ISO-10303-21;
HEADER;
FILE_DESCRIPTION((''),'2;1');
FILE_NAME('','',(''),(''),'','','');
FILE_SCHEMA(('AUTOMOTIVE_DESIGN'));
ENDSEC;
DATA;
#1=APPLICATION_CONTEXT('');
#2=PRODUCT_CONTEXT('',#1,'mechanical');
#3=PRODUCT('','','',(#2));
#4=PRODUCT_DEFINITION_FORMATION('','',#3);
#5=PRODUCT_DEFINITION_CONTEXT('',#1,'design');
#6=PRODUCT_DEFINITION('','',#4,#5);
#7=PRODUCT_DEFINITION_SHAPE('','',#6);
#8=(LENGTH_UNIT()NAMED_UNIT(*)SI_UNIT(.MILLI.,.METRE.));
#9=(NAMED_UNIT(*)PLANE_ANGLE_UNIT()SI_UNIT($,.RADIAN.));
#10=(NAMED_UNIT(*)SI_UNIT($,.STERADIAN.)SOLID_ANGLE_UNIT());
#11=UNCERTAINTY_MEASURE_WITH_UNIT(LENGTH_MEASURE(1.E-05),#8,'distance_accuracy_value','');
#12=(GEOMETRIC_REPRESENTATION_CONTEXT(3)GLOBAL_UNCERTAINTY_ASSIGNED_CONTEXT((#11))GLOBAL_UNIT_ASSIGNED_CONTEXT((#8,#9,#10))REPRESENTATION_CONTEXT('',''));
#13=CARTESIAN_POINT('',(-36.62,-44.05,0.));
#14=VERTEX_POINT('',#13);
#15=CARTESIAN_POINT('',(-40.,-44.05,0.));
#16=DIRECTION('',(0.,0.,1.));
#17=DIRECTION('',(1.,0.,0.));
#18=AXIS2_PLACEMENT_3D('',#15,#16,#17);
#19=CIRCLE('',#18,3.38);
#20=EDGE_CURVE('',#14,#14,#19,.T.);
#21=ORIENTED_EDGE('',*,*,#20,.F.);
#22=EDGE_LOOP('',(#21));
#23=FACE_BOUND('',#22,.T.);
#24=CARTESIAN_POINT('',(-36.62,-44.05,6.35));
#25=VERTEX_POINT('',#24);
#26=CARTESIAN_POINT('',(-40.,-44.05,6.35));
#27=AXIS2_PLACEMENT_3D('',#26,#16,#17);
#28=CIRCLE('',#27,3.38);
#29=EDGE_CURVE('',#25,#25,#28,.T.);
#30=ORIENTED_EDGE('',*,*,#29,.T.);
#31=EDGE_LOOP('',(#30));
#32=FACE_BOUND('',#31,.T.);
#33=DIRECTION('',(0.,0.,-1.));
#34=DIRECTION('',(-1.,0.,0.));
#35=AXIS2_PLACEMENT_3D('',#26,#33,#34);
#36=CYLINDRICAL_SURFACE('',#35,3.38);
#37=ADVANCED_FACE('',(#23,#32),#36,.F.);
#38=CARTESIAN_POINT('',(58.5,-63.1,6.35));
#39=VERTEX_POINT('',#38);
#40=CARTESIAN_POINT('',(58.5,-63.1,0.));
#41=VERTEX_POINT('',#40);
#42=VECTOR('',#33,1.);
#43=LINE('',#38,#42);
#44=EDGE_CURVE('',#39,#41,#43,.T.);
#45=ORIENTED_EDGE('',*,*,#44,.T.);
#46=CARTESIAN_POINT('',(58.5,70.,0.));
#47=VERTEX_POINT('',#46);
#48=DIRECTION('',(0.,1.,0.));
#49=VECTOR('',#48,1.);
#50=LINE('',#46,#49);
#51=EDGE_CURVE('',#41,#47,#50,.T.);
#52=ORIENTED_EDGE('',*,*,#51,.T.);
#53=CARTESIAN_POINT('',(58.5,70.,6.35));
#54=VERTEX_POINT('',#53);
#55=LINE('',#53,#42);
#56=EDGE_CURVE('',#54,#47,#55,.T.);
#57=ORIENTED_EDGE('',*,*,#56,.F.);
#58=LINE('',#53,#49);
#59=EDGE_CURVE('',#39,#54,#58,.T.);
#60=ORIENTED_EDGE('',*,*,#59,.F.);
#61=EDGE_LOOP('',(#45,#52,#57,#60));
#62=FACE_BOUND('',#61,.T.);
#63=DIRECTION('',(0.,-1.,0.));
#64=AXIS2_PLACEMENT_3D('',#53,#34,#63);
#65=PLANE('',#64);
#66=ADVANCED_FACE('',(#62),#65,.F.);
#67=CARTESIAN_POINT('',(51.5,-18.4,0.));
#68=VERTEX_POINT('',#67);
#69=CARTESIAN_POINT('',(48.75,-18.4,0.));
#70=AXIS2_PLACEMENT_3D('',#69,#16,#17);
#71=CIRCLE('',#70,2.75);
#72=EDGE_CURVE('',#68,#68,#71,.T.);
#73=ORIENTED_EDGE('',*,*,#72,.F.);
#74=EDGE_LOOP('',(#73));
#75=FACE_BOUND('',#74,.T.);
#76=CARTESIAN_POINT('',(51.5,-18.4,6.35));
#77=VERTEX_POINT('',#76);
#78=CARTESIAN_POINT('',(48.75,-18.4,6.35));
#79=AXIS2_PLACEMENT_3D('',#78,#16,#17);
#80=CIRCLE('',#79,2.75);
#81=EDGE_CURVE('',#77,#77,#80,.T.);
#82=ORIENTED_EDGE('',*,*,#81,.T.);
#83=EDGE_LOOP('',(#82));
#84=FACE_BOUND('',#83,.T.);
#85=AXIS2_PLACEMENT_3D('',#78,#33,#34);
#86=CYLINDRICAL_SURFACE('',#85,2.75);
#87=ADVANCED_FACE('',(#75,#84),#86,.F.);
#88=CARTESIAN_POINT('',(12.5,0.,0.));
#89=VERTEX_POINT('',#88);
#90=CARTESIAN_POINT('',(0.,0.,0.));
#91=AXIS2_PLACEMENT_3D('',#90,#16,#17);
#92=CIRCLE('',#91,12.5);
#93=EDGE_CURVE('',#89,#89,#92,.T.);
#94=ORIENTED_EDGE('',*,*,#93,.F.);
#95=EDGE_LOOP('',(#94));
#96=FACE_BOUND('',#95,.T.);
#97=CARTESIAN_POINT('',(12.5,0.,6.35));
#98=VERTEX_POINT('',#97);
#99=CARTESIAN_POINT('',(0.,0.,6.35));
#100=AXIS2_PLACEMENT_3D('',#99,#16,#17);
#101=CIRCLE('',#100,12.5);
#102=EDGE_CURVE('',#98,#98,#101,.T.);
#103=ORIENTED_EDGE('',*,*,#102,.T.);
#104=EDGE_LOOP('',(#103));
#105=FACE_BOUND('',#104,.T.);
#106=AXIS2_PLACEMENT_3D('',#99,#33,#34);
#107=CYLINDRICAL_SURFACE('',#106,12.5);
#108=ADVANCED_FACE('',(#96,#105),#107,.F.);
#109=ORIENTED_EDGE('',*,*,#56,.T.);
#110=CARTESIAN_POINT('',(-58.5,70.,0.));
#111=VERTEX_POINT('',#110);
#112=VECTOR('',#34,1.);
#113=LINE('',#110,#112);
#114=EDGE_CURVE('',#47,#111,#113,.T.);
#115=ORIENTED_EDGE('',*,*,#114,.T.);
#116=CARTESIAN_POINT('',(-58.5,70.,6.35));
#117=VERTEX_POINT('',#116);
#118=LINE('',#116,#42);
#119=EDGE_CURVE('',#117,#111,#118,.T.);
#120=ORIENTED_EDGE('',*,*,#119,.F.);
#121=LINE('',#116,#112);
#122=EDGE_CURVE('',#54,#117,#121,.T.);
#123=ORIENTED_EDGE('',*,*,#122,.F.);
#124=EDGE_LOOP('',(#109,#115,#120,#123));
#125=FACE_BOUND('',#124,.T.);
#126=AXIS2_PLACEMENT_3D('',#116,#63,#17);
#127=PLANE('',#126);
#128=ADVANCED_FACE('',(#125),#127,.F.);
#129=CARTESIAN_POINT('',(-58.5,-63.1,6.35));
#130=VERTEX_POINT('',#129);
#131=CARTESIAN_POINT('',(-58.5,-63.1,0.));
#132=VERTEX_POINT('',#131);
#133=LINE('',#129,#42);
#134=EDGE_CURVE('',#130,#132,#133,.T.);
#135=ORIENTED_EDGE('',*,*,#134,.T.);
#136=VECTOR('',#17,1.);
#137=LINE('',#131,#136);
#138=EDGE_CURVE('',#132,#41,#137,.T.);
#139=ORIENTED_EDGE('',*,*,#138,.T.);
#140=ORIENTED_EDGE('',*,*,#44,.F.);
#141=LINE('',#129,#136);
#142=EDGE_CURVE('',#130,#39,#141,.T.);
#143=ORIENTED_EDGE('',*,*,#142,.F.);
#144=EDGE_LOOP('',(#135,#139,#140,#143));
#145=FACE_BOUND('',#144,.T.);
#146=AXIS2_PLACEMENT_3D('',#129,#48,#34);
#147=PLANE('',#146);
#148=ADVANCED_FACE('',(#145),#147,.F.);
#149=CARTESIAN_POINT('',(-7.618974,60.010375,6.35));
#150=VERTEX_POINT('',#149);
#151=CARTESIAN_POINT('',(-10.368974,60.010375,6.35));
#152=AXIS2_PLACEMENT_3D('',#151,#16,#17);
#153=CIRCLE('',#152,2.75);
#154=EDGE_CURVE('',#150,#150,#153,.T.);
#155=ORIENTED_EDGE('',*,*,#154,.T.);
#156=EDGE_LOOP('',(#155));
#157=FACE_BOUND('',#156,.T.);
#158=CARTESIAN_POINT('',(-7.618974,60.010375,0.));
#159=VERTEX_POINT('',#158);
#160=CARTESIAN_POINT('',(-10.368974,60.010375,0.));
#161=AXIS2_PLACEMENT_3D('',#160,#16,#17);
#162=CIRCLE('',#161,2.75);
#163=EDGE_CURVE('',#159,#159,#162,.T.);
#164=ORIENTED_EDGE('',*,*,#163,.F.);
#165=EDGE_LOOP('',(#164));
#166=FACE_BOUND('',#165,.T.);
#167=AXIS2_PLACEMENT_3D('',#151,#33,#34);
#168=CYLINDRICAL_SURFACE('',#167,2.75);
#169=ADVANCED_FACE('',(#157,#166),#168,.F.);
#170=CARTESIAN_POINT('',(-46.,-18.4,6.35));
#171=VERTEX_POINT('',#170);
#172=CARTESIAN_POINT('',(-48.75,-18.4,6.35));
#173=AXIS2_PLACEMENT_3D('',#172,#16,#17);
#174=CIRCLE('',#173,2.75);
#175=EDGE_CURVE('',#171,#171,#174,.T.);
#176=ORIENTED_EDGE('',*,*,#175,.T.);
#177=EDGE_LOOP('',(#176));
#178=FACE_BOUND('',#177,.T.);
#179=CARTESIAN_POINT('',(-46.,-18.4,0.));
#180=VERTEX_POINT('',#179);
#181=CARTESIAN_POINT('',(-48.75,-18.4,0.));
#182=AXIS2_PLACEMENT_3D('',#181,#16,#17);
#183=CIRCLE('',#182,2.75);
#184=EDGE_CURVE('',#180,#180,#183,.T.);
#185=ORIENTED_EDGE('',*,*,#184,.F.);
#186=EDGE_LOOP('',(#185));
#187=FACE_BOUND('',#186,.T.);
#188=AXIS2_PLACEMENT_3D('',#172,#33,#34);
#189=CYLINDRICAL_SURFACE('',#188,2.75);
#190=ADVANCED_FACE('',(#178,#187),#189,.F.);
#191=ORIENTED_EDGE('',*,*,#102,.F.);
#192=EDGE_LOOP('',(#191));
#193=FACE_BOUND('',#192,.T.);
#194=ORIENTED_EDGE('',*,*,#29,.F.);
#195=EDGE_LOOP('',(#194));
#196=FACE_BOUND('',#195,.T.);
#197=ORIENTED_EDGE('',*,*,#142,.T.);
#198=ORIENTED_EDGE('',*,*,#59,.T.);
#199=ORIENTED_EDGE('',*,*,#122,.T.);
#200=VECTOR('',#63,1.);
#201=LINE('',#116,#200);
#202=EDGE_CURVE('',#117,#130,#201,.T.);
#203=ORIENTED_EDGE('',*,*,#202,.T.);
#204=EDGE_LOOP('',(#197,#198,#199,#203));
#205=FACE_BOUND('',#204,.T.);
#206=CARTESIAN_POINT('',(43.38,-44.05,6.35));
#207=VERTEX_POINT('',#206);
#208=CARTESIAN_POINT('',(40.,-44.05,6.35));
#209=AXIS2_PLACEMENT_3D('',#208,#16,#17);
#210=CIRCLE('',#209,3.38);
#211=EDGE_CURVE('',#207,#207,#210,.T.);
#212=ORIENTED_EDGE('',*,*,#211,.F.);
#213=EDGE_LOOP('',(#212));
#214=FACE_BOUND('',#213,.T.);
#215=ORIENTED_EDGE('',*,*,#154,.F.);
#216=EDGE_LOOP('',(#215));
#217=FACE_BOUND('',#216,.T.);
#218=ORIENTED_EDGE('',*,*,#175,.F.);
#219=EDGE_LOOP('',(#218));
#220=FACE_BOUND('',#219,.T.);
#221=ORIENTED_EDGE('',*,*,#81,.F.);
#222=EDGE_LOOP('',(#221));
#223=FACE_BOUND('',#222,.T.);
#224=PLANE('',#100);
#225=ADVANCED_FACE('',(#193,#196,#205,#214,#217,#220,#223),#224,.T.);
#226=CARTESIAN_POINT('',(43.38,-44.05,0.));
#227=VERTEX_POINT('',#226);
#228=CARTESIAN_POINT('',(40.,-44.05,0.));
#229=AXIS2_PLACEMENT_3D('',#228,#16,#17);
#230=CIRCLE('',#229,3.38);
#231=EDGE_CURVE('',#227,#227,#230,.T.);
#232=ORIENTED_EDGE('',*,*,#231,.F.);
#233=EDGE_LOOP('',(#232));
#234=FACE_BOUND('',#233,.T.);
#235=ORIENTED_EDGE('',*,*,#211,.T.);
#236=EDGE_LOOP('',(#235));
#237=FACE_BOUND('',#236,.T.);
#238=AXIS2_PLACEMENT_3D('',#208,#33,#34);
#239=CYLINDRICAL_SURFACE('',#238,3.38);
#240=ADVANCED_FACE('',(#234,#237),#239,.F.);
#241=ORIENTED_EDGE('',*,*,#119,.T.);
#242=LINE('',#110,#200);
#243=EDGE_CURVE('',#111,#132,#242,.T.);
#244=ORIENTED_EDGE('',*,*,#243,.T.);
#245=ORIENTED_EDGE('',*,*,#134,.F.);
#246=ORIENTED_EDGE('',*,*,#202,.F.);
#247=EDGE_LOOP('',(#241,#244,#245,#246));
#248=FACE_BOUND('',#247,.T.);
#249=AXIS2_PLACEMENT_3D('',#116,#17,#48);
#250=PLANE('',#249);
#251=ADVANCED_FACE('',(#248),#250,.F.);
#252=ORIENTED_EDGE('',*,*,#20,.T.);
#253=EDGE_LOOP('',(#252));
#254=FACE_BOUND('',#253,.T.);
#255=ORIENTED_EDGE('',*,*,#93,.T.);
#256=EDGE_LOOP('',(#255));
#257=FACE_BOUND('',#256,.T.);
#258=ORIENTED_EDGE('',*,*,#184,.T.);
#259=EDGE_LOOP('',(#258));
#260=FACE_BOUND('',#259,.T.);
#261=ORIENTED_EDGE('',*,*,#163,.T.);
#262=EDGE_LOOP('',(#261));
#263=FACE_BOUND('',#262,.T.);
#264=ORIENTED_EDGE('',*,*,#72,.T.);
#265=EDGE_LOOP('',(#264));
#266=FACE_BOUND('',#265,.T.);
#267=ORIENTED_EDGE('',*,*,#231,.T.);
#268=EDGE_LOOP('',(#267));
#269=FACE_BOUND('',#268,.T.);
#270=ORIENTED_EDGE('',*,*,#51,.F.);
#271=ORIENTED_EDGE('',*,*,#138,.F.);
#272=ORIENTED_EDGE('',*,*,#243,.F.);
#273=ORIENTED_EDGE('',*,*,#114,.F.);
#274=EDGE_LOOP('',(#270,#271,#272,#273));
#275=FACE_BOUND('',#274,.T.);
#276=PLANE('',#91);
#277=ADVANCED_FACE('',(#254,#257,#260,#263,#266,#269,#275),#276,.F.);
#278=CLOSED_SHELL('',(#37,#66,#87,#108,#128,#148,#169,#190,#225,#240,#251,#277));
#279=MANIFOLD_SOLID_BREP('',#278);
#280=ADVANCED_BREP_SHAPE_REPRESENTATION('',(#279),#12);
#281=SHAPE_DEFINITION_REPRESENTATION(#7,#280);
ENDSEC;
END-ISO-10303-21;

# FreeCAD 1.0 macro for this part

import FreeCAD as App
import Part
import Sketcher

V = App.Vector
Q = App.Units.Quantity


def add_polygon(sketch, points):
    """Adds a closed chain of lines whose ends are joined by coincident constraints."""
    first, n = sketch.GeometryCount, len(points)
    for a, b in zip(points, points[1:] + points[:1]):
        sketch.addGeometry(Part.LineSegment(App.Vector(*a, 0), App.Vector(*b, 0)), False)
    for i in range(n):
        sketch.addConstraint(Sketcher.Constraint("Coincident", first + i, 2, first + (i + 1) % n, 1))

doc = App.newDocument("Part")
body = doc.addObject("PartDesign::Body", "Body")

sketch1 = body.newObject("Sketcher::SketchObject", "Sketch")
sketch1.AttachmentSupport = (doc.getObject("XY_Plane"), [""])
sketch1.MapMode = "FlatFace"
add_polygon(sketch1, [(-58.5, 70), (-58.5, -63.1), (58.5, -63.1), (58.5, 70)])
sketch1.addGeometry(Part.Circle(V(-40, -44, 0), V(0, 0, 1), 3.4), False)
sketch1.addGeometry(Part.Circle(V(-48.8, -18.4, 0), V(0, 0, 1), 2.8), False)
sketch1.addGeometry(Part.Circle(V(0, 0, 0), V(0, 0, 1), 12.5), False)
sketch1.addGeometry(Part.Circle(V(40, -44, 0), V(0, 0, 1), 3.4), False)
sketch1.addGeometry(Part.Circle(V(48.8, -18.4, 0), V(0, 0, 1), 2.8), False)
sketch1.addGeometry(Part.Circle(V(-10.4, 60, 0), V(0, 0, 1), 2.8), False)
sketch1.addConstraint([
    Sketcher.Constraint("Vertical", 0),
    Sketcher.Constraint("Horizontal", 1),
    Sketcher.Constraint("Vertical", 2),
    Sketcher.Constraint("Horizontal", 3),
    Sketcher.Constraint("Coincident", 6, 3, -1, 1),
    Sketcher.Constraint("Equal", 4, 7),
    Sketcher.Constraint("Equal", 5, 8),
    Sketcher.Constraint("Equal", 8, 9),
    Sketcher.Constraint("Symmetric", 4, 3, 7, 3, -2),
    Sketcher.Constraint("Symmetric", 5, 3, 8, 3, -2),
    Sketcher.Constraint("Diameter", 6, Q("25 mm")),
    Sketcher.Constraint("Diameter", 5, Q("5.5 mm")),
    Sketcher.Constraint("Diameter", 4, Q("6.76 mm")),
    Sketcher.Constraint("DistanceX", 1, 1, 1, 2, Q("117 mm")),
    Sketcher.Constraint("DistanceY", 0, 2, 0, 1, Q("133.1 mm")),
    Sketcher.Constraint("DistanceX", 4, 3, -1, 1, Q("40 mm")),
    Sketcher.Constraint("DistanceY", -1, 1, 2, 2, Q("70 mm")),
    Sketcher.Constraint("DistanceY", 5, 3, -1, 1, Q("18.4 mm")),
    Sketcher.Constraint("DistanceX", 0, 2, -1, 1, Q("58.5 mm")),
    Sketcher.Constraint("DistanceX", 5, 3, 8, 3, Q("97.5 mm")),
    Sketcher.Constraint("DistanceY", 4, 3, -1, 1, Q("44.05 mm")),
    Sketcher.Constraint("DistanceX", 9, 3, -1, 1, Q("10.368974 mm")),
    Sketcher.Constraint("DistanceY", -1, 1, 9, 3, Q("60.010375 mm")),
])
pad1 = body.newObject("PartDesign::Pad", "Pad")
pad1.Profile = sketch1
pad1.Length = 6.35

doc.recompute()
